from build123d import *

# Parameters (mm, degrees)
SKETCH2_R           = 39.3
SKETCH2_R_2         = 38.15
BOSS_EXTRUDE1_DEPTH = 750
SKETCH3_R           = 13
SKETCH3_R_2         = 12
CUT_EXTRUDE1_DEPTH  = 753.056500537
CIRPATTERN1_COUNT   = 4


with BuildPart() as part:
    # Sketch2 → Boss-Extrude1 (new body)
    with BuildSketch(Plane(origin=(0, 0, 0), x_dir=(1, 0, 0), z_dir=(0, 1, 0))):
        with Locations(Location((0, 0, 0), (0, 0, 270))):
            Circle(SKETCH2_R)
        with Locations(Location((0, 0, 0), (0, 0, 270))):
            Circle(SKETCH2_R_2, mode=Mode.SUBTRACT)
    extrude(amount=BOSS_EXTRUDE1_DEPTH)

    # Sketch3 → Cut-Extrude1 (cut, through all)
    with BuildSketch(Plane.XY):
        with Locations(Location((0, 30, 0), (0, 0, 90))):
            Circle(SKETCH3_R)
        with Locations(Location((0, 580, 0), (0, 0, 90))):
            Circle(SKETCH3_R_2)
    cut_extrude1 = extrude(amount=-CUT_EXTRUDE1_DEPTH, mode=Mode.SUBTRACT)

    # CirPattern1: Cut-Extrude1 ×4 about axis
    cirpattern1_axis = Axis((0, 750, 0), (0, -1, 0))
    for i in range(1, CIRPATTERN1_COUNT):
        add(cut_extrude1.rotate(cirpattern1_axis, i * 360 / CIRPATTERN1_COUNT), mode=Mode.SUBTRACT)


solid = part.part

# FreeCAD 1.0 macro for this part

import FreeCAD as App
import Part
import Sketcher

V = App.Vector

doc = App.newDocument("Part")
body = doc.addObject("PartDesign::Body", "Body")

# Sketch on XZ plane
sketch1 = body.newObject("Sketcher::SketchObject", "Sketch")
sketch1.AttachmentSupport = (doc.getObject("XZ_Plane"), [""])
sketch1.MapMode = "FlatFace"
sketch1.addGeometry([
    Part.Circle(V(0, 0, 0), V(0, 0, 1), 39),
    Part.Circle(V(0, 0, 0), V(0, 0, 1), 38),
], False)
sketch1.addConstraint([
    Sketcher.Constraint("Coincident", 0, 3, -1, 1),
    Sketcher.Constraint("Coincident", 1, 3, -1, 1),
    Sketcher.Constraint("Diameter", 0, 78.6),
    Sketcher.Constraint("Diameter", 1, 76.3),
])
pad1 = body.newObject("PartDesign::Pad", "Pad")
pad1.Profile = sketch1
pad1.Length = 750
pad1.Reversed = True

# Sketch on XY plane
sketch2 = body.newObject("Sketcher::SketchObject", "Sketch001")
sketch2.AttachmentSupport = (doc.getObject("XY_Plane"), [""])
sketch2.MapMode = "FlatFace"
sketch2.addGeometry([
    Part.Circle(V(0, 30, 0), V(0, 0, 1), 13),
    Part.Circle(V(0, 580, 0), V(0, 0, 1), 12),
], False)
sketch2.addConstraint([
    Sketcher.Constraint("PointOnObject", 0, 3, -2),
    Sketcher.Constraint("PointOnObject", 1, 3, -2),
    Sketcher.Constraint("Diameter", 0, 26.0),
    Sketcher.Constraint("Diameter", 1, 24.0),
    Sketcher.Constraint("DistanceY", -1, 1, 0, 3, 30.0),
    Sketcher.Constraint("DistanceY", -1, 1, 1, 3, 580.0),
])
pocket1 = body.newObject("PartDesign::Pocket", "Pocket")
pocket1.Profile = sketch2
pocket1.Type = "ThroughAll"
doc.recompute()

polarpattern = body.newObject("PartDesign::PolarPattern", "PolarPattern")
polarpattern.Originals = [pocket1]
polarpattern.Axis = (doc.getObject("Y_Axis"), [""])
polarpattern.Angle = 360
polarpattern.Occurrences = 4
body.Tip = polarpattern

doc.recompute()
